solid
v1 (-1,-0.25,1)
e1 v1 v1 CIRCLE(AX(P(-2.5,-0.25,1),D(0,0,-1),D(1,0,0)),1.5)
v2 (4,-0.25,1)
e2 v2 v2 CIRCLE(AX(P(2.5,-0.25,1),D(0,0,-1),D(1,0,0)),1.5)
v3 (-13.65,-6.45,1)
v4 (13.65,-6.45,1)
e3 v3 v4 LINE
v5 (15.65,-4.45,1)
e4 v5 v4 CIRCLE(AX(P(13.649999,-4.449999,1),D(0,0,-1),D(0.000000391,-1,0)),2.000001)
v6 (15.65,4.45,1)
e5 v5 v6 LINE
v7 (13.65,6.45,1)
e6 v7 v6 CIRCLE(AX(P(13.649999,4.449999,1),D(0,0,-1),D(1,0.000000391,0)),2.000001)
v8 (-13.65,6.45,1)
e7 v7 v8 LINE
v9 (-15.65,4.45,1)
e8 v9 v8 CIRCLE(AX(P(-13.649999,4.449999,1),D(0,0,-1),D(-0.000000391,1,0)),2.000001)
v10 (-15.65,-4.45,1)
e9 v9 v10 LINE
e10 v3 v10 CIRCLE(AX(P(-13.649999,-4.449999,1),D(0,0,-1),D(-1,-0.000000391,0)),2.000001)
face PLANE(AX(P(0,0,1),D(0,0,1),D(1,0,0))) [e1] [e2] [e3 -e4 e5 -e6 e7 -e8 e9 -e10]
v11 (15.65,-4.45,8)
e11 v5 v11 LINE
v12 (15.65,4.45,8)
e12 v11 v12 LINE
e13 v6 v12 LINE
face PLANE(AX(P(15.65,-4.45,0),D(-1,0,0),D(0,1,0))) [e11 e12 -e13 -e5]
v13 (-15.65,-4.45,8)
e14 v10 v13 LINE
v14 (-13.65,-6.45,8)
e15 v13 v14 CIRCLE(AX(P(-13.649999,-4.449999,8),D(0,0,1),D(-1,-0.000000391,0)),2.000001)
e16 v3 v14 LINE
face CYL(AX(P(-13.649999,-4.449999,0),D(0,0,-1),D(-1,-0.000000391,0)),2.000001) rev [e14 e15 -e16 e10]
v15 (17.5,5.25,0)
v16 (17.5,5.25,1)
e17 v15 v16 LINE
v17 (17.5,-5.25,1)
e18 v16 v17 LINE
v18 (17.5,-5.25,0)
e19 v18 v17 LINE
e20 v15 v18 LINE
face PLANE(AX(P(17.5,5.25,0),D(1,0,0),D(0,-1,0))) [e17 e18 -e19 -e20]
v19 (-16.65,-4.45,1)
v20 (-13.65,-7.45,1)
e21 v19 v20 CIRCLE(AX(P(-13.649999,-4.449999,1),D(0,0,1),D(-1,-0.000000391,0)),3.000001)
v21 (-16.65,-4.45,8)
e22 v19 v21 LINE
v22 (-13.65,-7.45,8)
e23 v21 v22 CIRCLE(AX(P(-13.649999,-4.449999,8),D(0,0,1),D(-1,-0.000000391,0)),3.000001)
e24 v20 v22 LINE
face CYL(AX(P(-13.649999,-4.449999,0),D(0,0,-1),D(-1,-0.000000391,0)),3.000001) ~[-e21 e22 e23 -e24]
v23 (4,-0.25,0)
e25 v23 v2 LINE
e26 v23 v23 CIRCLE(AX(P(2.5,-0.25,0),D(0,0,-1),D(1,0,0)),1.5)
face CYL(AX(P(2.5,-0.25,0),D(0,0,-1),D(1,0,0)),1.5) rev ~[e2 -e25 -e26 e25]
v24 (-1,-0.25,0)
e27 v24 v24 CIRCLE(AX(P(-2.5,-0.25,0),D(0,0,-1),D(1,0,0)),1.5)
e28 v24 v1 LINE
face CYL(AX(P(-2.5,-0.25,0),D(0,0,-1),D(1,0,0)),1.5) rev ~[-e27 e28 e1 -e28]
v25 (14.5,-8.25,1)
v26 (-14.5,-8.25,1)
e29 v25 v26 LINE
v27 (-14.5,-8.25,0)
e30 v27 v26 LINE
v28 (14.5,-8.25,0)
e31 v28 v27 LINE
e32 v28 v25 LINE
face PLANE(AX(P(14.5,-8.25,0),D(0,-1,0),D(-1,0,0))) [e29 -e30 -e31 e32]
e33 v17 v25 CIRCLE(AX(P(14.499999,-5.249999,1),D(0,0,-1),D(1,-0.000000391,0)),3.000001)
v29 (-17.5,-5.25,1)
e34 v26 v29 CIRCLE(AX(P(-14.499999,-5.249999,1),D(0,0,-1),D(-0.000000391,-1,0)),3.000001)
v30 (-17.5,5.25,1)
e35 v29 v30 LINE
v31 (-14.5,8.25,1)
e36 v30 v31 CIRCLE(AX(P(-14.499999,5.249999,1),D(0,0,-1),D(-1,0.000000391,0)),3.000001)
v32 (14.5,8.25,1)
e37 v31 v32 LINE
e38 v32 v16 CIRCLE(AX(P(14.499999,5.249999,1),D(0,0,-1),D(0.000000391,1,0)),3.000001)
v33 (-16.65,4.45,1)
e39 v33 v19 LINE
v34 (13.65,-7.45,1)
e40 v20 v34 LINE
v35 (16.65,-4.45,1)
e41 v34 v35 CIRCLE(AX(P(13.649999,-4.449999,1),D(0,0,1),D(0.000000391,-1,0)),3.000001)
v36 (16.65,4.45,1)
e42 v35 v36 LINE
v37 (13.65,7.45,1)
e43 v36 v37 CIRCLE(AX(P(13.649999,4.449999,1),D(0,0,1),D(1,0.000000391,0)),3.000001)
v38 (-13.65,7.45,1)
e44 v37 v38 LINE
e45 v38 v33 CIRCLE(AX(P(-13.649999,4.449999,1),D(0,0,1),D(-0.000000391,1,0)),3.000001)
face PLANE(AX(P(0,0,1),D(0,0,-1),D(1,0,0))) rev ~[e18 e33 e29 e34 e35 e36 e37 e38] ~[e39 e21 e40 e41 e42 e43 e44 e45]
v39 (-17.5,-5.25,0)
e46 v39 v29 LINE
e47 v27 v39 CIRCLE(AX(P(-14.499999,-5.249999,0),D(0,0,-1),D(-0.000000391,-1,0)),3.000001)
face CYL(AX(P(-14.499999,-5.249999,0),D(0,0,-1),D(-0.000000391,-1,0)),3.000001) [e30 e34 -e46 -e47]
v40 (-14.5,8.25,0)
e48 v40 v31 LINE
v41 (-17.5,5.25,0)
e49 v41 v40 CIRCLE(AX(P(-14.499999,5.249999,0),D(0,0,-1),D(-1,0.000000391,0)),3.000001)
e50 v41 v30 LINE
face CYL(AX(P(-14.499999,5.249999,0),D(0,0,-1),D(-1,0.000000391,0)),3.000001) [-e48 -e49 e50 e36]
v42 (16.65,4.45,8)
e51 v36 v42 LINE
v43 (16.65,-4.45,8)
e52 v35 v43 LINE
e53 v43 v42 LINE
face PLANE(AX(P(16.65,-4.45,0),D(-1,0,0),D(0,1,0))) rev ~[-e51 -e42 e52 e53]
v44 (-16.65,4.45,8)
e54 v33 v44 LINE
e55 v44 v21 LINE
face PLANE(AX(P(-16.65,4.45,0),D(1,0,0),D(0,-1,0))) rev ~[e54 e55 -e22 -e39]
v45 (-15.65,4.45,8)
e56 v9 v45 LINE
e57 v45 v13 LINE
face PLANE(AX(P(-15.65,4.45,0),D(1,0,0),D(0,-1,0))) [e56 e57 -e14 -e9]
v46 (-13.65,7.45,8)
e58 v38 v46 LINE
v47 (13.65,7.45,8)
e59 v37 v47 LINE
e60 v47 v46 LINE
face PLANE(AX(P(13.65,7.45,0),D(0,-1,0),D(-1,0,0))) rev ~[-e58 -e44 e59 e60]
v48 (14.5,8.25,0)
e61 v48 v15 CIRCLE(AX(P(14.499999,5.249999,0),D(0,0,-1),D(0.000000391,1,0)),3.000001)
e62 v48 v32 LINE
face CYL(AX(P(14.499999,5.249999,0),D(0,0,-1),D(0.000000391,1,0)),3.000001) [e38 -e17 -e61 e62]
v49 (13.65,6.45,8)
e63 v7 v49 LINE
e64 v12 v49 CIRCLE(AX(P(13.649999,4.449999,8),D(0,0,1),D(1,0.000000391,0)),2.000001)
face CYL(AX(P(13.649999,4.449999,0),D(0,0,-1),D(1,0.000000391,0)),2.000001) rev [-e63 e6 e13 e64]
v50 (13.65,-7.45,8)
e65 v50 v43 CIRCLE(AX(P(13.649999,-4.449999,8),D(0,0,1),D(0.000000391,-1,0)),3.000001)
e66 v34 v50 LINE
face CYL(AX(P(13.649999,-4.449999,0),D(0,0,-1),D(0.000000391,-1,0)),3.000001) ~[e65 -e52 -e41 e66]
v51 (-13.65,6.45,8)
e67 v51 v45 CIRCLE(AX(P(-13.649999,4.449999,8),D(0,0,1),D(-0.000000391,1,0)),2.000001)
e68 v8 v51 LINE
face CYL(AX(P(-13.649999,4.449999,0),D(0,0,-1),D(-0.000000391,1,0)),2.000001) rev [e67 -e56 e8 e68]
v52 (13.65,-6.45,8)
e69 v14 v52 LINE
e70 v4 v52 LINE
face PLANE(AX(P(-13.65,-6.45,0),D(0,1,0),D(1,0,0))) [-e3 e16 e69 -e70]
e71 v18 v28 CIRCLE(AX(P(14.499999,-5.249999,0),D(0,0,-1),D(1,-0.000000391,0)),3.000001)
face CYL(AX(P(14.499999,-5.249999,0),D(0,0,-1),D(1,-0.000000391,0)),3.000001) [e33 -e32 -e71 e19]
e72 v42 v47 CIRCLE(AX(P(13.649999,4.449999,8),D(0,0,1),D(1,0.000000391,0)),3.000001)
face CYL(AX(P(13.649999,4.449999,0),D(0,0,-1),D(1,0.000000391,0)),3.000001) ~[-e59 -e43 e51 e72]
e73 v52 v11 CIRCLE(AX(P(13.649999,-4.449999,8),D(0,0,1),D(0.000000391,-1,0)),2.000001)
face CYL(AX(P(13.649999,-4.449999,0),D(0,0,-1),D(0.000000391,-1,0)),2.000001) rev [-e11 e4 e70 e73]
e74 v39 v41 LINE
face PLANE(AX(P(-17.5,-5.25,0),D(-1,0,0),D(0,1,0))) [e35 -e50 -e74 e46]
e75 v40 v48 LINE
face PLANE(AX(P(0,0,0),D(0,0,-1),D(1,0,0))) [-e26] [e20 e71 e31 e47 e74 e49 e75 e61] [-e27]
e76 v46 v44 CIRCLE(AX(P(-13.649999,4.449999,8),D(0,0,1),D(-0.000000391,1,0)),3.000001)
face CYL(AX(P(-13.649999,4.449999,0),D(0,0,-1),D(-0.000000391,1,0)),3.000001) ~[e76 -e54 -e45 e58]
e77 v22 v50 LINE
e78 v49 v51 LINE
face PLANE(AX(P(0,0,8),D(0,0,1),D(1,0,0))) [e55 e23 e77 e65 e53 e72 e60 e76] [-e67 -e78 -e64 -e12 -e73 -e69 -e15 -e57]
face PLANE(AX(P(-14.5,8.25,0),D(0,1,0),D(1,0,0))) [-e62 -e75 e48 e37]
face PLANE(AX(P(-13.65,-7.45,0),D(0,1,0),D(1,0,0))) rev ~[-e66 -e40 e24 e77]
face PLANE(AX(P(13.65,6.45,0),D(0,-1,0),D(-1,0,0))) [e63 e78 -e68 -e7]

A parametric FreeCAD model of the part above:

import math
import FreeCAD as App
import Part
import Sketcher


def faces_at(feature, points):
    """Names of the faces that lie closest to the given points."""
    faces = feature.Shape.Faces
    near = lambda p: min(range(len(faces)), key=lambda i: faces[i].distToShape(Part.Vertex(*p))[0])
    return sorted({f"Face{near(p) + 1}" for p in points})

doc = App.newDocument("Part")
body = doc.addObject("PartDesign::Body", "Body")

sketch1 = doc.addObject("Sketcher::SketchObject", "Sketch")
body.addObject(sketch1)
sketch1.AttachmentSupport = (doc.XY_Plane, [""])
sketch1.MapMode = "FlatFace"
sketch1.addGeometry(Part.LineSegment(App.Vector(-13.7, -7.5, 0), App.Vector(13.7, -7.5, 0)), False)
sketch1.addGeometry(Part.ArcOfCircle(Part.Circle(App.Vector(13.6, -4.4, 0), App.Vector(0, 0, 1), 3), math.radians(-90), math.radians(0)), False)
sketch1.addGeometry(Part.LineSegment(App.Vector(16.6, -4.5, 0), App.Vector(16.6, 4.5, 0)), False)
sketch1.addGeometry(Part.ArcOfCircle(Part.Circle(App.Vector(13.6, 4.4, 0), App.Vector(0, 0, 1), 3), math.radians(0), math.radians(90)), False)
sketch1.addGeometry(Part.LineSegment(App.Vector(13.7, 7.5, 0), App.Vector(-13.7, 7.5, 0)), False)
sketch1.addGeometry(Part.ArcOfCircle(Part.Circle(App.Vector(-13.6, 4.4, 0), App.Vector(0, 0, 1), 3), math.radians(90), math.radians(180)), False)
sketch1.addGeometry(Part.LineSegment(App.Vector(-16.6, 4.5, 0), App.Vector(-16.6, -4.5, 0)), False)
sketch1.addGeometry(Part.ArcOfCircle(Part.Circle(App.Vector(-13.6, -4.4, 0), App.Vector(0, 0, 1), 3), math.radians(-180), math.radians(-90)), False)
sketch1.addConstraint(Sketcher.Constraint("Tangent", 0, 2, 1, 1))
sketch1.addConstraint(Sketcher.Constraint("Tangent", 1, 2, 2, 1))
sketch1.addConstraint(Sketcher.Constraint("Tangent", 2, 2, 3, 1))
sketch1.addConstraint(Sketcher.Constraint("Tangent", 3, 2, 4, 1))
sketch1.addConstraint(Sketcher.Constraint("Tangent", 4, 2, 5, 1))
sketch1.addConstraint(Sketcher.Constraint("Tangent", 5, 2, 6, 1))
sketch1.addConstraint(Sketcher.Constraint("Tangent", 6, 2, 7, 1))
sketch1.addConstraint(Sketcher.Constraint("Tangent", 7, 2, 0, 1))
sketch1.addConstraint(Sketcher.Constraint("Horizontal", 0))
sketch1.addConstraint(Sketcher.Constraint("Vertical", 2))
sketch1.addConstraint(Sketcher.Constraint("Horizontal", 4))
sketch1.addConstraint(Sketcher.Constraint("Vertical", 6))
sketch1.addConstraint(Sketcher.Constraint("Equal", 1, 3))
sketch1.addConstraint(Sketcher.Constraint("Equal", 3, 5))
sketch1.addConstraint(Sketcher.Constraint("Equal", 5, 7))
sketch1.addConstraint(Sketcher.Constraint("Symmetric", 1, 3, 5, 3, -1, 1))
sketch1.addConstraint(Sketcher.Constraint("Radius", 1, 3.000001))
sketch1.addConstraint(Sketcher.Constraint("DistanceX", 0, 1, 0, 2, 27.3))
sketch1.addConstraint(Sketcher.Constraint("DistanceY", 2, 1, 2, 2, 8.9))
pad1 = doc.addObject("PartDesign::Pad", "Pad")
body.addObject(pad1)
pad1.Profile = sketch1
pad1.Length = 8
doc.recompute()

thickness = doc.addObject("PartDesign::Thickness", "Thickness")
body.addObject(thickness)
thickness.Base = (pad1, faces_at(pad1, [(0, 0, 8)]))
thickness.Value = 1
thickness.Reversed = True
thickness.Join = "Arc"
body2 = doc.addObject("PartDesign::Body", "Body001")

sketch2 = doc.addObject("Sketcher::SketchObject", "Sketch001")
body2.addObject(sketch2)
sketch2.AttachmentSupport = (doc.getObject("XY_Plane001"), [""])
sketch2.MapMode = "FlatFace"
sketch2.addGeometry(Part.LineSegment(App.Vector(-14.5, 8.2, 0), App.Vector(14.5, 8.2, 0)), False)
sketch2.addGeometry(Part.ArcOfCircle(Part.Circle(App.Vector(14.5, 5.2, 0), App.Vector(0, 0, 1), 3), math.radians(0), math.radians(90)), False)
sketch2.addGeometry(Part.LineSegment(App.Vector(17.5, 5.2, 0), App.Vector(17.5, -5.2, 0)), False)
sketch2.addGeometry(Part.ArcOfCircle(Part.Circle(App.Vector(14.5, -5.2, 0), App.Vector(0, 0, 1), 3), math.radians(-90), math.radians(0)), False)
sketch2.addGeometry(Part.LineSegment(App.Vector(14.5, -8.2, 0), App.Vector(-14.5, -8.2, 0)), False)
sketch2.addGeometry(Part.ArcOfCircle(Part.Circle(App.Vector(-14.5, -5.2, 0), App.Vector(0, 0, 1), 3), math.radians(-180), math.radians(-90)), False)
sketch2.addGeometry(Part.LineSegment(App.Vector(-17.5, -5.2, 0), App.Vector(-17.5, 5.2, 0)), False)
sketch2.addGeometry(Part.ArcOfCircle(Part.Circle(App.Vector(-14.5, 5.2, 0), App.Vector(0, 0, 1), 3), math.radians(90), math.radians(180)), False)
sketch2.addGeometry(Part.ArcOfCircle(Part.Circle(App.Vector(-13.6, -4.4, 0), App.Vector(0, 0, 1), 3), math.radians(-180), math.radians(-90)), False)
sketch2.addGeometry(Part.LineSegment(App.Vector(-13.7, -7.5, 0), App.Vector(13.7, -7.5, 0)), False)
sketch2.addGeometry(Part.ArcOfCircle(Part.Circle(App.Vector(13.6, -4.4, 0), App.Vector(0, 0, 1), 3), math.radians(-90), math.radians(0)), False)
sketch2.addGeometry(Part.LineSegment(App.Vector(16.6, -4.5, 0), App.Vector(16.6, 4.5, 0)), False)
sketch2.addGeometry(Part.ArcOfCircle(Part.Circle(App.Vector(13.6, 4.4, 0), App.Vector(0, 0, 1), 3), math.radians(0), math.radians(90)), False)
sketch2.addGeometry(Part.LineSegment(App.Vector(13.7, 7.5, 0), App.Vector(-13.7, 7.5, 0)), False)
sketch2.addGeometry(Part.ArcOfCircle(Part.Circle(App.Vector(-13.6, 4.4, 0), App.Vector(0, 0, 1), 3), math.radians(90), math.radians(180)), False)
sketch2.addGeometry(Part.LineSegment(App.Vector(-16.6, 4.5, 0), App.Vector(-16.6, -4.5, 0)), False)
sketch2.addConstraint(Sketcher.Constraint("Tangent", 0, 2, 1, 2))
sketch2.addConstraint(Sketcher.Constraint("Tangent", 1, 1, 2, 1))
sketch2.addConstraint(Sketcher.Constraint("Tangent", 2, 2, 3, 2))
sketch2.addConstraint(Sketcher.Constraint("Tangent", 3, 1, 4, 1))
sketch2.addConstraint(Sketcher.Constraint("Tangent", 4, 2, 5, 2))
sketch2.addConstraint(Sketcher.Constraint("Tangent", 5, 1, 6, 1))
sketch2.addConstraint(Sketcher.Constraint("Tangent", 6, 2, 7, 2))
sketch2.addConstraint(Sketcher.Constraint("Tangent", 7, 1, 0, 1))
sketch2.addConstraint(Sketcher.Constraint("Tangent", 8, 2, 9, 1))
sketch2.addConstraint(Sketcher.Constraint("Tangent", 9, 2, 10, 1))
sketch2.addConstraint(Sketcher.Constraint("Tangent", 10, 2, 11, 1))
sketch2.addConstraint(Sketcher.Constraint("Tangent", 11, 2, 12, 1))
sketch2.addConstraint(Sketcher.Constraint("Tangent", 12, 2, 13, 1))
sketch2.addConstraint(Sketcher.Constraint("Tangent", 13, 2, 14, 1))
sketch2.addConstraint(Sketcher.Constraint("Tangent", 14, 2, 15, 1))
sketch2.addConstraint(Sketcher.Constraint("Tangent", 15, 2, 8, 1))
sketch2.addConstraint(Sketcher.Constraint("Horizontal", 0))
sketch2.addConstraint(Sketcher.Constraint("Vertical", 2))
sketch2.addConstraint(Sketcher.Constraint("Horizontal", 4))
sketch2.addConstraint(Sketcher.Constraint("Vertical", 6))
sketch2.addConstraint(Sketcher.Constraint("Horizontal", 9))
sketch2.addConstraint(Sketcher.Constraint("Vertical", 11))
sketch2.addConstraint(Sketcher.Constraint("Horizontal", 13))
sketch2.addConstraint(Sketcher.Constraint("Vertical", 15))
sketch2.addConstraint(Sketcher.Constraint("Equal", 1, 3))
sketch2.addConstraint(Sketcher.Constraint("Equal", 3, 5))
sketch2.addConstraint(Sketcher.Constraint("Equal", 5, 7))
sketch2.addConstraint(Sketcher.Constraint("Equal", 7, 8))
sketch2.addConstraint(Sketcher.Constraint("Equal", 8, 10))
sketch2.addConstraint(Sketcher.Constraint("Equal", 10, 12))
sketch2.addConstraint(Sketcher.Constraint("Equal", 12, 14))
sketch2.addConstraint(Sketcher.Constraint("Symmetric", 1, 3, 5, 3, -1, 1))
sketch2.addConstraint(Sketcher.Constraint("Symmetric", 8, 3, 12, 3, -1, 1))
sketch2.addConstraint(Sketcher.Constraint("Radius", 1, 3.000001))
sketch2.addConstraint(Sketcher.Constraint("DistanceX", 0, 1, 0, 2, 29.0))
sketch2.addConstraint(Sketcher.Constraint("DistanceX", 9, 1, 9, 2, 27.3))
sketch2.addConstraint(Sketcher.Constraint("DistanceY", 2, 2, 2, 1, 10.5))
sketch2.addConstraint(Sketcher.Constraint("DistanceY", 11, 1, 11, 2, 8.9))
pad2 = doc.addObject("PartDesign::Pad", "Pad001")
body2.addObject(pad2)
pad2.Profile = sketch2
pad2.Length = 1
doc.recompute()

boolean = doc.addObject("PartDesign::Boolean", "Boolean")
body.addObject(boolean)
boolean.Type = "Fuse"
boolean.addObjects([body2])

sketch3 = doc.addObject("Sketcher::SketchObject", "Sketch002")
body.addObject(sketch3)
sketch3.AttachmentSupport = (doc.XY_Plane, [""])
sketch3.MapMode = "FlatFace"
sketch3.addGeometry(Part.Circle(App.Vector(-2.5, -0.2, 0), App.Vector(0, 0, 1), 1.5), False)
sketch3.addGeometry(Part.Circle(App.Vector(2.5, -0.2, 0), App.Vector(0, 0, 1), 1.5), False)
sketch3.addConstraint(Sketcher.Constraint("Equal", 0, 1))
sketch3.addConstraint(Sketcher.Constraint("Symmetric", 0, 3, 1, 3, -2))
sketch3.addConstraint(Sketcher.Constraint("Diameter", 0, 3.0))
sketch3.addConstraint(Sketcher.Constraint("DistanceX", 0, 3, 1, 3, 5.0))
sketch3.addConstraint(Sketcher.Constraint("DistanceY", 0, 3, -1, 1, 0.25))
pocket1 = doc.addObject("PartDesign::Pocket", "Pocket")
body.addObject(pocket1)
pocket1.Profile = sketch3
pocket1.Type = "ThroughAll"
pocket1.Reversed = True

doc.recompute()
